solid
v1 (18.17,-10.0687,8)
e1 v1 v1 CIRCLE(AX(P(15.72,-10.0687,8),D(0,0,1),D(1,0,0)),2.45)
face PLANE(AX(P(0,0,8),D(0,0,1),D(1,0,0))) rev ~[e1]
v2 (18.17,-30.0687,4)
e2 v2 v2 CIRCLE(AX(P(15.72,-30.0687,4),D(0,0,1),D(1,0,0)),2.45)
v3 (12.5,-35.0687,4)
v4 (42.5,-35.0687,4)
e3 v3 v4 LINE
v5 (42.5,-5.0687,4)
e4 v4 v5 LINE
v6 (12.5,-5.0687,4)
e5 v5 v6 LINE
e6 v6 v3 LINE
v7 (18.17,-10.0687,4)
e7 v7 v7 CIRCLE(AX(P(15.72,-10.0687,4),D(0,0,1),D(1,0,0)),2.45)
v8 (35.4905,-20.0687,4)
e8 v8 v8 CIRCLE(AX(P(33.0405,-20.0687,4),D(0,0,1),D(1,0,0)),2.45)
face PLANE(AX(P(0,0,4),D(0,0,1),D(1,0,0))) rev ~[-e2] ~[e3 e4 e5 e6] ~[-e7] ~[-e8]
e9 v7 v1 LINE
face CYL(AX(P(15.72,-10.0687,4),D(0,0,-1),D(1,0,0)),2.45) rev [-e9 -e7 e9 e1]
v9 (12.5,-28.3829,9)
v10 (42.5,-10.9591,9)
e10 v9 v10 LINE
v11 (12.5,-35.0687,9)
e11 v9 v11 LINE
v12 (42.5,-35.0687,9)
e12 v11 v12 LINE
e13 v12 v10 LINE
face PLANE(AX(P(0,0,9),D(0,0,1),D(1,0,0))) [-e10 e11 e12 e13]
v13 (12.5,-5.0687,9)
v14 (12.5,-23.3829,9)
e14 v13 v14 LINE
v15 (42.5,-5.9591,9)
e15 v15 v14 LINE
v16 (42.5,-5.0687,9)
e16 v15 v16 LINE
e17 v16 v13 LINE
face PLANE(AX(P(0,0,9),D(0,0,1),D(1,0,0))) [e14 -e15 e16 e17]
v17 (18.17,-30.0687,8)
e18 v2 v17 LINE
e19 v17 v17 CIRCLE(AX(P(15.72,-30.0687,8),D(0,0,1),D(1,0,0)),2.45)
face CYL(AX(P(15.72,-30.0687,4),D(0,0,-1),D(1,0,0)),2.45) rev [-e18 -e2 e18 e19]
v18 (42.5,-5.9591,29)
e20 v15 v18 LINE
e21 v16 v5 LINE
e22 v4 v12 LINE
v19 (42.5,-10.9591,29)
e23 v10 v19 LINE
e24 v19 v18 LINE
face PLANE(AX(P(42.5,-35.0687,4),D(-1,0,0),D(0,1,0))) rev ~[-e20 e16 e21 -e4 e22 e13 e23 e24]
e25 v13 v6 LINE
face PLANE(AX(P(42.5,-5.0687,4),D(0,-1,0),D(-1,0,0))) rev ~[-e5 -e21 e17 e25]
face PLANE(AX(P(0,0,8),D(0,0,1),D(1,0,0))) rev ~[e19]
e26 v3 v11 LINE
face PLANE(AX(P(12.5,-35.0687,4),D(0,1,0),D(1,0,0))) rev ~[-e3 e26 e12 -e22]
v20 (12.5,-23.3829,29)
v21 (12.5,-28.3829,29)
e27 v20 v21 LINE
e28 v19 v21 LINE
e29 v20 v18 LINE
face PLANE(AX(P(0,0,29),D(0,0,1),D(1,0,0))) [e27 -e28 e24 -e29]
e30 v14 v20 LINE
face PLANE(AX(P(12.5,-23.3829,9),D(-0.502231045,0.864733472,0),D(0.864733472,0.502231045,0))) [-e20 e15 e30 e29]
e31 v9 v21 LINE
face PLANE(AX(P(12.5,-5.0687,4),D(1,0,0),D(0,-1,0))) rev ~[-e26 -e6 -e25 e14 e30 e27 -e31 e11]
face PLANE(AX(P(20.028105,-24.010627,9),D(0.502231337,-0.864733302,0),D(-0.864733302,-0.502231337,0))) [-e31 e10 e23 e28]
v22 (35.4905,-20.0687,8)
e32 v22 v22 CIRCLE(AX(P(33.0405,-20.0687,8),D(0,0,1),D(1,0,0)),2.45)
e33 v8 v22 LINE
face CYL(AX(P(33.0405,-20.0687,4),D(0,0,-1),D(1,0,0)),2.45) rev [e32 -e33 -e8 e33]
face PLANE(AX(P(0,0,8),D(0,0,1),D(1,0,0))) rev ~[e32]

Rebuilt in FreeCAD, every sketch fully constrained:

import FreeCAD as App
import Part
import Sketcher


def add_polygon(sketch, points):
    """Adds a closed chain of lines whose ends are joined by coincident constraints."""
    first, n = sketch.GeometryCount, len(points)
    for a, b in zip(points, points[1:] + points[:1]):
        sketch.addGeometry(Part.LineSegment(App.Vector(*a, 0), App.Vector(*b, 0)), False)
    for i in range(n):
        sketch.addConstraint(Sketcher.Constraint("Coincident", first + i, 2, first + (i + 1) % n, 1))

doc = App.newDocument("Part")
body = doc.addObject("PartDesign::Body", "Body")

# Sketch on XY plane
sketch1 = body.newObject("Sketcher::SketchObject", "Sketch")
sketch1.AttachmentSupport = (doc.getObject("XY_Plane"), [""])
sketch1.MapMode = "FlatFace"
sketch1.AttachmentOffset = App.Placement(App.Vector(0, 0, 4), App.Rotation())
add_polygon(sketch1, [(12.5, -5.0687), (12.5, -35.0687), (42.5, -35.0687), (42.5, -5.0687)])  # lines 0-3
sketch1.addGeometry(Part.Circle(App.Vector(15.72, -30.0687, 0), App.Vector(0, 0, 1), 2.45), False)  # 4
sketch1.addGeometry(Part.Circle(App.Vector(33.0405, -20.0687, 0), App.Vector(0, 0, 1), 2.45), False)  # 5
sketch1.addGeometry(Part.Circle(App.Vector(15.72, -10.0687, 0), App.Vector(0, 0, 1), 2.45), False)  # 6
sketch1.addConstraint([
    Sketcher.Constraint("Vertical", 0),
    Sketcher.Constraint("Horizontal", 1),
    Sketcher.Constraint("Vertical", 2),
    Sketcher.Constraint("Horizontal", 3),
    Sketcher.Constraint("Equal", 4, 5),
    Sketcher.Constraint("Equal", 5, 6),
    Sketcher.Constraint("Vertical", 4, 3, 6, 3),
    Sketcher.Constraint("Equal", 3, 0),
    Sketcher.Constraint("Diameter", 4, 4.9),
    Sketcher.Constraint("DistanceX", 1, 1, 1, 2, 30.0),
    Sketcher.Constraint("DistanceY", 4, 3, 5, 3, 10.0),
    Sketcher.Constraint("DistanceY", 5, 3, 6, 3, 10.0),
    Sketcher.Constraint("DistanceY", 0, 2, 4, 3, 5.0),
    Sketcher.Constraint("DistanceX", -1, 1, 0, 2, 12.5),
    Sketcher.Constraint("DistanceX", -1, 1, 4, 3, 15.72),
    Sketcher.Constraint("DistanceY", 4, 3, -1, 1, 30.0687),
    Sketcher.Constraint("DistanceX", -1, 1, 5, 3, 33.0405),
])
pad1 = body.newObject("PartDesign::Pad", "Pad")
pad1.Profile = sketch1
pad1.Length = 4

# Sketch on XY plane
sketch2 = body.newObject("Sketcher::SketchObject", "Sketch001")
sketch2.AttachmentSupport = (doc.getObject("XY_Plane"), [""])
sketch2.MapMode = "FlatFace"
sketch2.AttachmentOffset = App.Placement(App.Vector(0, 0, 8), App.Rotation())
add_polygon(sketch2, [(42.5, -5.0687), (12.5, -5.0687), (12.5, -35.0687), (42.5, -35.0687)])  # lines 0-3
sketch2.addConstraint([
    Sketcher.Constraint("Horizontal", 0),
    Sketcher.Constraint("Vertical", 1),
    Sketcher.Constraint("Horizontal", 2),
    Sketcher.Constraint("Vertical", 3),
    Sketcher.Constraint("Equal", 2, 1),
    Sketcher.Constraint("DistanceX", 0, 2, 0, 1, 30.0),
    Sketcher.Constraint("DistanceX", -1, 1, 0, 2, 12.5),
    Sketcher.Constraint("DistanceY", 0, 2, -1, 1, 5.0687),
])
pad2 = body.newObject("PartDesign::Pad", "Pad001")
pad2.Profile = sketch2
pad2.Length = 1

# Sketch on XY plane
sketch3 = body.newObject("Sketcher::SketchObject", "Sketch002")
sketch3.AttachmentSupport = (doc.getObject("XY_Plane"), [""])
sketch3.MapMode = "FlatFace"
sketch3.AttachmentOffset = App.Placement(App.Vector(0, 0, 9), App.Rotation())
add_polygon(sketch3, [(12.5, -23.3829), (12.5, -28.3829), (42.5, -10.9591), (42.5, -5.9591)])  # lines 0-3
sketch3.addConstraint([
    Sketcher.Constraint("Vertical", 0),
    Sketcher.Constraint("Vertical", 2),
    Sketcher.Constraint("Parallel", 1, 3),
    Sketcher.Constraint("DistanceY", 0, 2, 0, 1, 5.0),
    Sketcher.Constraint("DistanceX", 0, 2, 1, 2, 30.0),
    Sketcher.Constraint("DistanceX", -1, 1, 0, 2, 12.5),
    Sketcher.Constraint("DistanceY", 0, 2, -1, 1, 28.383),
    Sketcher.Constraint("DistanceY", 1, 2, -1, 1, 10.959),
])
pad3 = body.newObject("PartDesign::Pad", "Pad002")
pad3.Profile = sketch3
pad3.Length = 20

doc.recompute()
